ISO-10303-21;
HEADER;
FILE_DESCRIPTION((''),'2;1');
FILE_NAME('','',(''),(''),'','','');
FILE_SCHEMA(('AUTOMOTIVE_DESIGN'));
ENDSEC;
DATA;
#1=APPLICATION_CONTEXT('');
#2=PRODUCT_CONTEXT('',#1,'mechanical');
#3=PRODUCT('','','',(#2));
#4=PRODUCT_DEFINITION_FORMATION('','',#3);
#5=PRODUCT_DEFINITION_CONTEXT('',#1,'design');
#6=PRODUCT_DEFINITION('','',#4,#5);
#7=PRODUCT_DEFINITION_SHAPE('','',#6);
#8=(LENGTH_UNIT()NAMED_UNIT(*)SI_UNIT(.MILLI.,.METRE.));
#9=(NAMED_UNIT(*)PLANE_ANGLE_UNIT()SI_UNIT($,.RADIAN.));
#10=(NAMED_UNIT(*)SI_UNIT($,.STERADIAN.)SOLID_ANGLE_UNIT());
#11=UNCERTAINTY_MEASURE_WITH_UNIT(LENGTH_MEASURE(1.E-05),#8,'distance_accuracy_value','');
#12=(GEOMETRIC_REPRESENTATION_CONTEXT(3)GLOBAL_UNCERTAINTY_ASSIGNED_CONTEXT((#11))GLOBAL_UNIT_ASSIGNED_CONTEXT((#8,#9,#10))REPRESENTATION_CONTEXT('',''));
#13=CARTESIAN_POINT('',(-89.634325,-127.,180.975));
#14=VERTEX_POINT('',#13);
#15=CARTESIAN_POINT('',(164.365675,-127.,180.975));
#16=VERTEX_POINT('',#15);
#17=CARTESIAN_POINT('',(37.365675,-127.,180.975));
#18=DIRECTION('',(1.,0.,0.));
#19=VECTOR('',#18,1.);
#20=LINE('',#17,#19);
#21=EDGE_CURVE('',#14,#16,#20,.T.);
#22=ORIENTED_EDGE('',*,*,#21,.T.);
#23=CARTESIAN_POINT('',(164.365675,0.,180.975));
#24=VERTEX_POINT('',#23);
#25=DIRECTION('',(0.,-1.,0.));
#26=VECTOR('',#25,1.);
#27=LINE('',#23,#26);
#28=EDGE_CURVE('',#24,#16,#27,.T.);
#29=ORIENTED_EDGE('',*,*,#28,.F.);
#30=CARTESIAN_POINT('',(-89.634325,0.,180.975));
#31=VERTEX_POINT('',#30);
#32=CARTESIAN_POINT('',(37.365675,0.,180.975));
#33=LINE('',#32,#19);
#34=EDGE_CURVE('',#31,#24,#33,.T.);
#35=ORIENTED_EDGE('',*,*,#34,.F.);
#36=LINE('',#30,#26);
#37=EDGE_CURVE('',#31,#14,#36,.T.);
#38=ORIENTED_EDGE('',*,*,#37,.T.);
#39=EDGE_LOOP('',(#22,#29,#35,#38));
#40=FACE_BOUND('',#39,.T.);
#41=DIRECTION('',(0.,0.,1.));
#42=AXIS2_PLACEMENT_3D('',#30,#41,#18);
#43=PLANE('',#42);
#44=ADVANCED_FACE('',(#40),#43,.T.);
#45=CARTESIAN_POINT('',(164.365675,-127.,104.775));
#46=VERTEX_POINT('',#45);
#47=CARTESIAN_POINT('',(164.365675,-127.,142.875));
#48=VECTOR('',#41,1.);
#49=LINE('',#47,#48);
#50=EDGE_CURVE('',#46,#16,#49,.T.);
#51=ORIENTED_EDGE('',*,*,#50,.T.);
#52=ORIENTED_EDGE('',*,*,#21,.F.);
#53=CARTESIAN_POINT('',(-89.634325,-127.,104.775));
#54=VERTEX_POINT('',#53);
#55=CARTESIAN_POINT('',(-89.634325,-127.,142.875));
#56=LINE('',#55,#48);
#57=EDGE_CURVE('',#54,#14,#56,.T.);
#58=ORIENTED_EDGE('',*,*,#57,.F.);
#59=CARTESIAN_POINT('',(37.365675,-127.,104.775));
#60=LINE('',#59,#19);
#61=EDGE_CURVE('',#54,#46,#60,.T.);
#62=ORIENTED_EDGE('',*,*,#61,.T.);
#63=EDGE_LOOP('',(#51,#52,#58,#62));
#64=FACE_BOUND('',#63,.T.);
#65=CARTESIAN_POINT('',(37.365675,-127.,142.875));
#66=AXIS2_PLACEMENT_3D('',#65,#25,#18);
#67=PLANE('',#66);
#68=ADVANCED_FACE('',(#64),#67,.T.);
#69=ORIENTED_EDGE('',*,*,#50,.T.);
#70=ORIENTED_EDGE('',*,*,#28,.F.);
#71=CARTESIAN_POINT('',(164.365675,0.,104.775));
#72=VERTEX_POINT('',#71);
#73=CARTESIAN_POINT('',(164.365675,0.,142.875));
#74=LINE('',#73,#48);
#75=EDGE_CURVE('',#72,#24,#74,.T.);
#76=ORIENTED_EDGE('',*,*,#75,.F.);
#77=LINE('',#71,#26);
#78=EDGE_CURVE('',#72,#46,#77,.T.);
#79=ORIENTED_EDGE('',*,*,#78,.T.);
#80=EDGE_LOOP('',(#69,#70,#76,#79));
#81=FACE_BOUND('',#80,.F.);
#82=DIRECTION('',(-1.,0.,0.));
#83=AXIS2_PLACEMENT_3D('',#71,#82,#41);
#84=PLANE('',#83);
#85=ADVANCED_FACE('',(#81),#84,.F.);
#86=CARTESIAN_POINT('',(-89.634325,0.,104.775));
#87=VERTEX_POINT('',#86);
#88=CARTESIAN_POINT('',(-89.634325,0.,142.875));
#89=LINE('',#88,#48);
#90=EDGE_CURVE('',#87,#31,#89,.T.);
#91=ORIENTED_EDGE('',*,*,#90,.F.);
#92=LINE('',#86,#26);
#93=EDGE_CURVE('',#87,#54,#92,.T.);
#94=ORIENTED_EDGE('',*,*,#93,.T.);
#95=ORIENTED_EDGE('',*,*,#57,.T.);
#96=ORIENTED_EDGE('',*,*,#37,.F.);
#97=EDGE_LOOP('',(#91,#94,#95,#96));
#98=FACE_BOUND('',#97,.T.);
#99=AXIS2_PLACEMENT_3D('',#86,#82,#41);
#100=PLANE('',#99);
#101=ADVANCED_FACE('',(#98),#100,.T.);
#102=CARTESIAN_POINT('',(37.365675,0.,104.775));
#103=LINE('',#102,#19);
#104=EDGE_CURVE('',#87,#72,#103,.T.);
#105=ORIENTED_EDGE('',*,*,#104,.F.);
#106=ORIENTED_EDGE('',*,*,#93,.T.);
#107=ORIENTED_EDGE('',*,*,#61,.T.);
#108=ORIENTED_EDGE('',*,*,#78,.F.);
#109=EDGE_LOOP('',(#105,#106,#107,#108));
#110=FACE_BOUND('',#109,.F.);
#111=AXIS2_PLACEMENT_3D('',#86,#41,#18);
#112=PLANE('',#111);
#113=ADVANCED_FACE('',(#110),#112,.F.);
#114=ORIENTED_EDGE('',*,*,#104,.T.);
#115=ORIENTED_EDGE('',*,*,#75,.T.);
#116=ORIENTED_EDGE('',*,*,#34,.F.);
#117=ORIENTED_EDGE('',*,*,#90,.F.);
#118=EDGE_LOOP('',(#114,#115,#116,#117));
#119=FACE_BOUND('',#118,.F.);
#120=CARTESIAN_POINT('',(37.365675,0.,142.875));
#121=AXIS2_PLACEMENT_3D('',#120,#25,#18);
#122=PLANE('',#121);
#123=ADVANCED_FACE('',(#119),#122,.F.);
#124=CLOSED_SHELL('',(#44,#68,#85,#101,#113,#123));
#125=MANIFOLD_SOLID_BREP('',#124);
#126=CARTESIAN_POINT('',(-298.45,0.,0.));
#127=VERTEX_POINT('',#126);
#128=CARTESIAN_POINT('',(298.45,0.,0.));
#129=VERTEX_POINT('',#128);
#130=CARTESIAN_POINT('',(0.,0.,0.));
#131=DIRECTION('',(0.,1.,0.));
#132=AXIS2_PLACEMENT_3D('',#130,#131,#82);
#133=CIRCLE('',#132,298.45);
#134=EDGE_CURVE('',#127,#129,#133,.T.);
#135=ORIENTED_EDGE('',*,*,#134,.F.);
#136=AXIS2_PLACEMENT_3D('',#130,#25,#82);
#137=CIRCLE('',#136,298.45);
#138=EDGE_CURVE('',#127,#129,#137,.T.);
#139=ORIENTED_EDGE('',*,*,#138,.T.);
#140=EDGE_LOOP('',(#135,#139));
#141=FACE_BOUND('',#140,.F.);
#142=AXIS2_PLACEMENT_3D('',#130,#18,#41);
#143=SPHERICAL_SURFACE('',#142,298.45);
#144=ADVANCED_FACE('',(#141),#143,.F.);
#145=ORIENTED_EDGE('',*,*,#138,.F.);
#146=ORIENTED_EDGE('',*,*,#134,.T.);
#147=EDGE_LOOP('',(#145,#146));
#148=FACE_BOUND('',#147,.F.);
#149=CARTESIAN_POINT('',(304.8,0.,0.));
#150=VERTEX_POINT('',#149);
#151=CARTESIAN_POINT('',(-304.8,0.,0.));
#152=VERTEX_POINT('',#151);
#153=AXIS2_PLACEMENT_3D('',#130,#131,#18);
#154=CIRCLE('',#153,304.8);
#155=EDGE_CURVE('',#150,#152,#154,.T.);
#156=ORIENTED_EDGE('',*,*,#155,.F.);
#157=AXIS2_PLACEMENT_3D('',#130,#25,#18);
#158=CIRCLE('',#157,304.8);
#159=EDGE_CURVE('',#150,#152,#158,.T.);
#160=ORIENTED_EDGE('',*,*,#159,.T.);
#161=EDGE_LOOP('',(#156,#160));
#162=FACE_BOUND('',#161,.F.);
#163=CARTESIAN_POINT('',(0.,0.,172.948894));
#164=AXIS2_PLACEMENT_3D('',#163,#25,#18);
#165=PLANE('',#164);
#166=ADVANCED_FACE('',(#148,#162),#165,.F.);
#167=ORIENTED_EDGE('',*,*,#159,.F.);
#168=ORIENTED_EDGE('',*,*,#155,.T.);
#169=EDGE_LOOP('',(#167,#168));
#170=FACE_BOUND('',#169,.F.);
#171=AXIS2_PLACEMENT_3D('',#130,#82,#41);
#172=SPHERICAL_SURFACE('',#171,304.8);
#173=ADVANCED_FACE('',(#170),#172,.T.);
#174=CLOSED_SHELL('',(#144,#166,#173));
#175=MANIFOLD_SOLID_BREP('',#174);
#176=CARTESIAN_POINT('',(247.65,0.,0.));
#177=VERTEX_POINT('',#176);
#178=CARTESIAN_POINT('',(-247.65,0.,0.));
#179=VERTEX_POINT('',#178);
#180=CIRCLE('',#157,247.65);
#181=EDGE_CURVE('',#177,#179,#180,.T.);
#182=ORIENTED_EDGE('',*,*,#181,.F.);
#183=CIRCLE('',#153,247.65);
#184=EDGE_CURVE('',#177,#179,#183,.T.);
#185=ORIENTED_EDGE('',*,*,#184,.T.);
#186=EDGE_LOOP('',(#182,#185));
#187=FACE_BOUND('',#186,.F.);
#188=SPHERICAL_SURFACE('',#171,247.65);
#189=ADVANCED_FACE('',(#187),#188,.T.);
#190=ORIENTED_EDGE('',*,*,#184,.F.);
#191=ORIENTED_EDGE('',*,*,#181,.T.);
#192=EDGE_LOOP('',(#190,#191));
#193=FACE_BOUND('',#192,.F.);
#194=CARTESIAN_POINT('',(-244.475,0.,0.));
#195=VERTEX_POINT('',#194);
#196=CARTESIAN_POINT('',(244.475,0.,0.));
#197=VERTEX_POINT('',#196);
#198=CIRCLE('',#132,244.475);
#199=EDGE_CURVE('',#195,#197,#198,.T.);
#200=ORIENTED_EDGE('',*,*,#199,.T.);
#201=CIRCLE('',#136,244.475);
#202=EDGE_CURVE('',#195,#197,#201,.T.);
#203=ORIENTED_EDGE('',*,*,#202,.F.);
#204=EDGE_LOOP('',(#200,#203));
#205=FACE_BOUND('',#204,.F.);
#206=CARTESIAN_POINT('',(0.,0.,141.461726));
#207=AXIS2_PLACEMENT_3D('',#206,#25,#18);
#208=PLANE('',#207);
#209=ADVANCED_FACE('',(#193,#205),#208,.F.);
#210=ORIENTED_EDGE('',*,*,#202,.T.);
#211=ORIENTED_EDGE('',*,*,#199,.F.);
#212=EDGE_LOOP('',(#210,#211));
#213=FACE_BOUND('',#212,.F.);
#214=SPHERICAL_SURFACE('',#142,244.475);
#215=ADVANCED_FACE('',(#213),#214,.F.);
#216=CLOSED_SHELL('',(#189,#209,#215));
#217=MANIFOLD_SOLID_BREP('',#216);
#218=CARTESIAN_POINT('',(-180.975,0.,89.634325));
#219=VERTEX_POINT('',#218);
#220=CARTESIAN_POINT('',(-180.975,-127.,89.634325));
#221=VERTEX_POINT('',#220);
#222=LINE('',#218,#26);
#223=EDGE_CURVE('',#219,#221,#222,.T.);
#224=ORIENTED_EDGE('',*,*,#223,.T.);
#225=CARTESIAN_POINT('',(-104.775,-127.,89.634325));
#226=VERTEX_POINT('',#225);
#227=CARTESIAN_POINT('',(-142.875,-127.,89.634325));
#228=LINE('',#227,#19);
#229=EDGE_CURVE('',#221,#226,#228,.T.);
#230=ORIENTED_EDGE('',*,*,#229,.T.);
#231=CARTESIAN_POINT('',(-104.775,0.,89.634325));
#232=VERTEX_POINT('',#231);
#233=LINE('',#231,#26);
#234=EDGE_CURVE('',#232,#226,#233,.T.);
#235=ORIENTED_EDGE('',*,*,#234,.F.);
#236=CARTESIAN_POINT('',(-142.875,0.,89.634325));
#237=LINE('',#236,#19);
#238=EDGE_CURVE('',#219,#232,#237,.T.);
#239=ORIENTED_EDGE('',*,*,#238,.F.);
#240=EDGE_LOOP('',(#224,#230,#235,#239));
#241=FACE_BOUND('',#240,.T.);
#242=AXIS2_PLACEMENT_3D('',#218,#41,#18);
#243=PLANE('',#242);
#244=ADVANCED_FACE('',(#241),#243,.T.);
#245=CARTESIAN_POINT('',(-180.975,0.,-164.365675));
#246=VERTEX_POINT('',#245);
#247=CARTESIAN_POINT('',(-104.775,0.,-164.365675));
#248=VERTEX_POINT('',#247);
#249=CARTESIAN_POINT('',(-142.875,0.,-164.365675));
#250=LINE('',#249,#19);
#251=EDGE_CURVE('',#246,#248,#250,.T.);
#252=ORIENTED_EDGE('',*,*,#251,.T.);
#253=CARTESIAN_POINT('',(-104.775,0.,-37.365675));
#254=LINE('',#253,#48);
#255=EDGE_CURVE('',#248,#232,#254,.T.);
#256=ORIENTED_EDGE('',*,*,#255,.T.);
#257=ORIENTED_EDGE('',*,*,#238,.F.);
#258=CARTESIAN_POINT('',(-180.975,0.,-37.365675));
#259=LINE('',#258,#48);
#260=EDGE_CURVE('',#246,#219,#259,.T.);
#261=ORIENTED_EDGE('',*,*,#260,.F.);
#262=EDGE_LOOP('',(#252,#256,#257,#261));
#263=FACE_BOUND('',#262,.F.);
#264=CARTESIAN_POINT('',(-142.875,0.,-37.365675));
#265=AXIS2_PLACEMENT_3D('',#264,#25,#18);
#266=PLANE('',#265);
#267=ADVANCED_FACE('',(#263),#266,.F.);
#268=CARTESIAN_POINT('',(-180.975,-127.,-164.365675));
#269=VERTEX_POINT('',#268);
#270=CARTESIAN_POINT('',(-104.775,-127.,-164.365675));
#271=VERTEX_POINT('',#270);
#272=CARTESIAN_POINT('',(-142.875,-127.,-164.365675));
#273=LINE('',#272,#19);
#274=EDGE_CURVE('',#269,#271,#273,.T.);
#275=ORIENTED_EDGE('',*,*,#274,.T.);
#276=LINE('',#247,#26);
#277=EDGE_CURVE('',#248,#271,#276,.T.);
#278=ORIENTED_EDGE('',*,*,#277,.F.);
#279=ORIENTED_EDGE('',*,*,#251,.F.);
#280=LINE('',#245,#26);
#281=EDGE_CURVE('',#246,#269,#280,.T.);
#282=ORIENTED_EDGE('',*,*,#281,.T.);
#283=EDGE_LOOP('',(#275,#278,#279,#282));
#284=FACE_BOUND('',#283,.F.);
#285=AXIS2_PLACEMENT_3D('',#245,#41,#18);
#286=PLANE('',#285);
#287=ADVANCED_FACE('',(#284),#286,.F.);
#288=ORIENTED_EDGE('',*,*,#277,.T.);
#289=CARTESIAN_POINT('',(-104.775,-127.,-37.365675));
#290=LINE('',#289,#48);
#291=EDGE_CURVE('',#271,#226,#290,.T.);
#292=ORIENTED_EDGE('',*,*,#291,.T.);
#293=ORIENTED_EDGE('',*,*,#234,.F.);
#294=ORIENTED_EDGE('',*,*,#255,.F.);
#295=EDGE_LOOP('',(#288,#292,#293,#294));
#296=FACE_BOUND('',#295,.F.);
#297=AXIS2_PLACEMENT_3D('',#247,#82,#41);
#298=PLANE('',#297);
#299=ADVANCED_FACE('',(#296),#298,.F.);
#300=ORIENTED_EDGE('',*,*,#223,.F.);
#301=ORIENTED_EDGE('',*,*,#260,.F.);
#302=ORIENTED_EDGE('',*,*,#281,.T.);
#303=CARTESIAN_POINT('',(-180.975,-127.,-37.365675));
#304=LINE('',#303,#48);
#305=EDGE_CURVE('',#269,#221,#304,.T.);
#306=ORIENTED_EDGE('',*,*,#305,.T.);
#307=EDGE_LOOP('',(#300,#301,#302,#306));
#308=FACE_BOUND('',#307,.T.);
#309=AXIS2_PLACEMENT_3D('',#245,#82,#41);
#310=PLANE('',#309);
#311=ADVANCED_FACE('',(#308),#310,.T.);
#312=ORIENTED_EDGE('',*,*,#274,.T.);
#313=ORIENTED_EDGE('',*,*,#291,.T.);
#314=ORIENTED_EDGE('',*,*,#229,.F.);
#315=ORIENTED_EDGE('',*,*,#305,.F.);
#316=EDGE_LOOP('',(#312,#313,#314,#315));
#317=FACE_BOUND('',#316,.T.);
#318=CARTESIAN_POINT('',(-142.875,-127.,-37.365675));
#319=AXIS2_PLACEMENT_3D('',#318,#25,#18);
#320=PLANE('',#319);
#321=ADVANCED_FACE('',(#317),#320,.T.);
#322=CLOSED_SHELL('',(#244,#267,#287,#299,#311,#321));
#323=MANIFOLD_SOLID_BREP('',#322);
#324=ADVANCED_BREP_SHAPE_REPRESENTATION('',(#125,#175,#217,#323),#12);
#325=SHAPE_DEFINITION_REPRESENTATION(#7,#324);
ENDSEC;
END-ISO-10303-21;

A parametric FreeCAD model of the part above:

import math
import FreeCAD as App
import Part
import Sketcher
from FreeCAD import Vector
Q = App.Units.Quantity


def add_polygon(sketch, points):
    """Adds a closed chain of lines whose ends are joined by coincident constraints."""
    first, n = sketch.GeometryCount, len(points)
    for a, b in zip(points, points[1:] + points[:1]):
        sketch.addGeometry(Part.LineSegment(App.Vector(*a, 0), App.Vector(*b, 0)), False)
    for i in range(n):
        sketch.addConstraint(Sketcher.Constraint("Coincident", first + i, 2, first + (i + 1) % n, 1))

doc = App.newDocument("Part")
params = doc.addObject("Spreadsheet::Sheet", "Params")
for row, (alias, value) in enumerate([
    ("sketch1_radius", "12 in"),
    ("sketch1_radius2", "11.75 in"),
    ("revolution_angle", "180 deg"),
    ("sketch2_radius", "9.75 in"),
    ("sketch2_radius2", "9.625 in"),
    ("revolution2_angle", "180 deg"),
    ("sketch3_width", "3 in"),
    ("sketch3_width2", "10 in"),
    ("pad1_length", "5 in"),
], start=1):
    params.set(f"A{row}", alias)
    params.set(f"B{row}", "=" + value)
    params.setAlias(f"B{row}", alias)

body = doc.addObject("PartDesign::Body", "Body")

# Sketch on XZ plane
sketch1 = body.newObject("Sketcher::SketchObject", "Sketch")
sketch1.AttachmentSupport = (doc.getObject("XZ_Plane"), [""])
sketch1.MapMode = "FlatFace"
sketch1.addGeometry([
    Part.LineSegment(Vector(298, 0, 0), Vector(305, 0, 0)),
    Part.ArcOfCircle(Part.Circle(Vector(0, 0, 0), Vector(0, 0, 1), 305), math.radians(0), math.radians(180)),
    Part.LineSegment(Vector(-305, 0, 0), Vector(-298, 0, 0)),
    Part.ArcOfCircle(Part.Circle(Vector(0, 0, 0), Vector(0, 0, 1), 298), math.radians(0), math.radians(180)),
], False)
sketch1.addConstraint([
    Sketcher.Constraint("Coincident", 0, 2, 1, 1),
    Sketcher.Constraint("Coincident", 1, 2, 2, 1),
    Sketcher.Constraint("Coincident", 2, 2, 3, 2),
    Sketcher.Constraint("Coincident", 3, 1, 0, 1),
    Sketcher.Constraint("Horizontal", 0),
    Sketcher.Constraint("Horizontal", 2),
    Sketcher.Constraint("Coincident", 1, 3, -1, 1),
    Sketcher.Constraint("Coincident", 3, 3, -1, 1),
    Sketcher.Constraint("PointOnObject", 0, 2, -1),
    Sketcher.Constraint("PointOnObject", 1, 2, -1),
    Sketcher.Constraint("Radius", 1, Q("12 in")),
    Sketcher.Constraint("Radius", 3, Q("11.75 in")),
])
sketch1.setExpression("Constraints[10]", "Params.sketch1_radius")
sketch1.setExpression("Constraints[11]", "Params.sketch1_radius2")
revolution = body.newObject("PartDesign::Revolution", "Revolution")
revolution.Profile = sketch1
revolution.ReferenceAxis = (sketch1, ["H_Axis"])
revolution.setExpression("Angle", "Params.revolution_angle")
body2 = doc.addObject("PartDesign::Body", "Body001")

# Sketch on XZ plane
sketch2 = body2.newObject("Sketcher::SketchObject", "Sketch001")
sketch2.AttachmentSupport = (doc.getObject("XZ_Plane001"), [""])
sketch2.MapMode = "FlatFace"
sketch2.addGeometry([
    Part.LineSegment(Vector(244.5, 0, 0), Vector(247.7, 0, 0)),
    Part.ArcOfCircle(Part.Circle(Vector(0, 0, 0), Vector(0, 0, 1), 247.7), math.radians(0), math.radians(180)),
    Part.LineSegment(Vector(-247.7, 0, 0), Vector(-244.5, 0, 0)),
    Part.ArcOfCircle(Part.Circle(Vector(0, 0, 0), Vector(0, 0, 1), 244.5), math.radians(0), math.radians(180)),
], False)
sketch2.addConstraint([
    Sketcher.Constraint("Coincident", 0, 2, 1, 1),
    Sketcher.Constraint("Coincident", 1, 2, 2, 1),
    Sketcher.Constraint("Coincident", 2, 2, 3, 2),
    Sketcher.Constraint("Coincident", 3, 1, 0, 1),
    Sketcher.Constraint("Horizontal", 0),
    Sketcher.Constraint("Horizontal", 2),
    Sketcher.Constraint("Coincident", 1, 3, -1, 1),
    Sketcher.Constraint("Coincident", 3, 3, -1, 1),
    Sketcher.Constraint("PointOnObject", 0, 2, -1),
    Sketcher.Constraint("PointOnObject", 1, 2, -1),
    Sketcher.Constraint("Radius", 1, Q("9.75 in")),
    Sketcher.Constraint("Radius", 3, Q("9.625 in")),
])
sketch2.setExpression("Constraints[10]", "Params.sketch2_radius")
sketch2.setExpression("Constraints[11]", "Params.sketch2_radius2")
revolution2 = body2.newObject("PartDesign::Revolution", "Revolution001")
revolution2.Profile = sketch2
revolution2.ReferenceAxis = (sketch2, ["H_Axis"])
revolution2.setExpression("Angle", "Params.revolution2_angle")
body3 = doc.addObject("PartDesign::Body", "Body002")
body3.AllowCompound = True

# Sketch on XZ plane
sketch3 = body3.newObject("Sketcher::SketchObject", "Sketch002")
sketch3.AttachmentSupport = (doc.getObject("XZ_Plane002"), [""])
sketch3.MapMode = "FlatFace"
add_polygon(sketch3, [(-181, 90), (-181, -164), (-105, -164), (-105, 90)])  # lines 0-3
add_polygon(sketch3, [(-90, 181), (-90, 105), (164, 105), (164, 181)])  # lines 4-7
sketch3.addConstraint([
    Sketcher.Constraint("Vertical", 0),
    Sketcher.Constraint("Horizontal", 1),
    Sketcher.Constraint("Vertical", 2),
    Sketcher.Constraint("Horizontal", 3),
    Sketcher.Constraint("Vertical", 4),
    Sketcher.Constraint("Horizontal", 5),
    Sketcher.Constraint("Vertical", 6),
    Sketcher.Constraint("Horizontal", 7),
    Sketcher.Constraint("Equal", 7, 0),
    Sketcher.Constraint("Equal", 3, 4),
    Sketcher.Constraint("DistanceX", 1, 1, 1, 2, Q("3 in")),
    Sketcher.Constraint("DistanceX", 5, 1, 5, 2, Q("10 in")),
    Sketcher.Constraint("DistanceX", 0, 2, -1, 1, Q("7.125 in")),
    Sketcher.Constraint("DistanceY", -1, 1, 4, 2, Q("4.125 in")),
    Sketcher.Constraint("DistanceY", 0, 2, -1, 1, 164.365675),
    Sketcher.Constraint("DistanceX", 4, 2, -1, 1, 89.634325),
])
sketch3.setExpression("Constraints[18]", "Params.sketch3_width")
sketch3.setExpression("Constraints[19]", "Params.sketch3_width2")
pad1 = body3.newObject("PartDesign::Pad", "Pad")
pad1.Profile = sketch3
pad1.setExpression("Length", "Params.pad1_length")

doc.recompute()
